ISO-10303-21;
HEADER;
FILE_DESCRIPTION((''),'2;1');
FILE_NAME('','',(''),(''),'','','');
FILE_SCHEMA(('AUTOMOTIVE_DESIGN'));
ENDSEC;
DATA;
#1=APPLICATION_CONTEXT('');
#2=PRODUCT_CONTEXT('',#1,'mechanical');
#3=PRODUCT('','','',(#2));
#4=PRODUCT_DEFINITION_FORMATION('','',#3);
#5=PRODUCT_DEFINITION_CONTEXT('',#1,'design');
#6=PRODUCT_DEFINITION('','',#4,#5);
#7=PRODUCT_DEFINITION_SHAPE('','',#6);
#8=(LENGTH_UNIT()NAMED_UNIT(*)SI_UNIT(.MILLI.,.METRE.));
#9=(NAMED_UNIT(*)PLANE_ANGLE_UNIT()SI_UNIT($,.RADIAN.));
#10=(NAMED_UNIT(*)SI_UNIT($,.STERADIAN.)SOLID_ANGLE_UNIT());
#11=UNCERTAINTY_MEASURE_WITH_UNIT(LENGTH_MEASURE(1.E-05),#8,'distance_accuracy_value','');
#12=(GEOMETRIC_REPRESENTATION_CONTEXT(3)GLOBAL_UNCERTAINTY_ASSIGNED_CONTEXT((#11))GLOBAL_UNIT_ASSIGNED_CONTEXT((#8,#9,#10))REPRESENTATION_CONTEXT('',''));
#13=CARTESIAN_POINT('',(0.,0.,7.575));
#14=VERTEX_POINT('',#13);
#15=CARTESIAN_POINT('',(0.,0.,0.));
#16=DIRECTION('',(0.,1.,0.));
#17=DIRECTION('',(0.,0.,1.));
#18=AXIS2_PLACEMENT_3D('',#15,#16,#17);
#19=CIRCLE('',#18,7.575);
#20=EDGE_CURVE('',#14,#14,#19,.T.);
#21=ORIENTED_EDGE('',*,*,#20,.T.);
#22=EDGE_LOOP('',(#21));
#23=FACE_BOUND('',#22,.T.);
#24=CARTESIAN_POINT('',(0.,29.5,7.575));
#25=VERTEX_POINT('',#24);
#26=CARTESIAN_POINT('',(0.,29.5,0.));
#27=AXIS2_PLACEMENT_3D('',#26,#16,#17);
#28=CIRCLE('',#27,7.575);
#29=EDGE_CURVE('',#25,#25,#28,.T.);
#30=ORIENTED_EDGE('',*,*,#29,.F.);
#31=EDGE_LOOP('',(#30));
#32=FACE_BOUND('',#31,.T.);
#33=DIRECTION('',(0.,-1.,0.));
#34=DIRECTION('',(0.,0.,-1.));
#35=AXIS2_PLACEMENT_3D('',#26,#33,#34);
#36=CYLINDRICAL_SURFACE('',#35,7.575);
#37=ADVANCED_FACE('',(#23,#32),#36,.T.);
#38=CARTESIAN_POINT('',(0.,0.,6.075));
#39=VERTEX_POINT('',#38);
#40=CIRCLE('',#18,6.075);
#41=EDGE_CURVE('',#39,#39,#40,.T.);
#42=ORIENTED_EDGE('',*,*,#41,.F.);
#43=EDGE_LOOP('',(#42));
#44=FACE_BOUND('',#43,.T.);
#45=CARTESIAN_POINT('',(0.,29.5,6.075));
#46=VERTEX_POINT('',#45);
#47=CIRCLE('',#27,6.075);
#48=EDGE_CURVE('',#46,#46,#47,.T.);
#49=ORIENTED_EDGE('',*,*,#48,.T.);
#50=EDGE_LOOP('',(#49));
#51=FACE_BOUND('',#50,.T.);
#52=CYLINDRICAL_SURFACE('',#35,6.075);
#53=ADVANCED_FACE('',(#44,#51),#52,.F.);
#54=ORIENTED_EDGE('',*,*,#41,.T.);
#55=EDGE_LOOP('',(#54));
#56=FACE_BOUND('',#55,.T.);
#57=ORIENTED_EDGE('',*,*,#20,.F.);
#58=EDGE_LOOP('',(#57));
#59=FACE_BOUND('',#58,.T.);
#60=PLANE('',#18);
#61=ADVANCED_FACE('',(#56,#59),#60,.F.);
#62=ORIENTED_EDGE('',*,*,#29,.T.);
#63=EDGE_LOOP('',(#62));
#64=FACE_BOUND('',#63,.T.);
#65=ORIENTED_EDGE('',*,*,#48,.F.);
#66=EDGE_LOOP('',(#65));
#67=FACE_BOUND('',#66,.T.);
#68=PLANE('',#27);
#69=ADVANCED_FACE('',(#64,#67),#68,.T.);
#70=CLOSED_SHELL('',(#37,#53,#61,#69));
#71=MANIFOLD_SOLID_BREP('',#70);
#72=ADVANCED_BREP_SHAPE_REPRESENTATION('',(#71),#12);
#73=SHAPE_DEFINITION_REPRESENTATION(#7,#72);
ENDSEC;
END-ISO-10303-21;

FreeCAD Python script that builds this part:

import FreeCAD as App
import Part
import Sketcher
from FreeCAD import Vector

doc = App.newDocument("Part")
body = doc.addObject("PartDesign::Body", "Body")

sketch1 = doc.addObject("Sketcher::SketchObject", "Sketch")
body.addObject(sketch1)
sketch1.AttachmentSupport = (doc.XZ_Plane, [""])
sketch1.MapMode = "FlatFace"
sketch1.addGeometry([
    Part.Circle(Vector(0, 0, 0), Vector(0, 0, 1), 8),
    Part.Circle(Vector(0, 0, 0), Vector(0, 0, 1), 6),
], False)
sketch1.addConstraint([
    Sketcher.Constraint("Coincident", 0, 3, -1, 1),
    Sketcher.Constraint("Coincident", 1, 3, -1, 1),
    Sketcher.Constraint("Diameter", 0, 15.15),
    Sketcher.Constraint("Diameter", 1, 12.15),
])
pad1 = doc.addObject("PartDesign::Pad", "Pad")
body.addObject(pad1)
pad1.Profile = sketch1
pad1.Length = 29.5
pad1.Reversed = True

doc.recompute()
